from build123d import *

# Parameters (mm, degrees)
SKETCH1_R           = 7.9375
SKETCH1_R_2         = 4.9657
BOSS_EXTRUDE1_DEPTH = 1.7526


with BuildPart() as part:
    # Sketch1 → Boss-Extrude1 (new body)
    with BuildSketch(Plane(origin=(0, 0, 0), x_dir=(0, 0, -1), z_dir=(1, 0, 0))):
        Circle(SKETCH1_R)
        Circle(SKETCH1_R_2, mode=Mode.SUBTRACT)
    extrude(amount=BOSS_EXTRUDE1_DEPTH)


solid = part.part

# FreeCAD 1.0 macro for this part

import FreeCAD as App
import Part
import Sketcher

V = App.Vector
Q = App.Units.Quantity

doc = App.newDocument("Part")
params = doc.addObject("Spreadsheet::Sheet", "Params")
for row, (alias, value) in enumerate([
    ("sketch1_diameter", "0.625 in"),
    ("sketch1_diameter2", "0.391 in"),
    ("pad1_length", "0.069 in"),
], start=1):
    params.set(f"A{row}", alias)
    params.set(f"B{row}", "=" + value)
    params.setAlias(f"B{row}", alias)

body = doc.addObject("PartDesign::Body", "Body")

# Sketch on YZ plane
sketch1 = body.newObject("Sketcher::SketchObject", "Sketch")
sketch1.AttachmentSupport = (doc.getObject("YZ_Plane"), [""])
sketch1.MapMode = "FlatFace"
sketch1.addGeometry([
    Part.Circle(V(0, 0, 0), V(0, 0, 1), 7.9),
    Part.Circle(V(0, 0, 0), V(0, 0, 1), 5),
], False)
sketch1.addConstraint([
    Sketcher.Constraint("Coincident", 0, 3, -1, 1),
    Sketcher.Constraint("Coincident", 1, 3, -1, 1),
    Sketcher.Constraint("Diameter", 0, Q("0.625 in")),
    Sketcher.Constraint("Diameter", 1, Q("0.391 in")),
])
sketch1.setExpression("Constraints[2]", "Params.sketch1_diameter")
sketch1.setExpression("Constraints[3]", "Params.sketch1_diameter2")
pad1 = body.newObject("PartDesign::Pad", "Pad")
pad1.Profile = sketch1
pad1.setExpression("Length", "Params.pad1_length")

doc.recompute()
